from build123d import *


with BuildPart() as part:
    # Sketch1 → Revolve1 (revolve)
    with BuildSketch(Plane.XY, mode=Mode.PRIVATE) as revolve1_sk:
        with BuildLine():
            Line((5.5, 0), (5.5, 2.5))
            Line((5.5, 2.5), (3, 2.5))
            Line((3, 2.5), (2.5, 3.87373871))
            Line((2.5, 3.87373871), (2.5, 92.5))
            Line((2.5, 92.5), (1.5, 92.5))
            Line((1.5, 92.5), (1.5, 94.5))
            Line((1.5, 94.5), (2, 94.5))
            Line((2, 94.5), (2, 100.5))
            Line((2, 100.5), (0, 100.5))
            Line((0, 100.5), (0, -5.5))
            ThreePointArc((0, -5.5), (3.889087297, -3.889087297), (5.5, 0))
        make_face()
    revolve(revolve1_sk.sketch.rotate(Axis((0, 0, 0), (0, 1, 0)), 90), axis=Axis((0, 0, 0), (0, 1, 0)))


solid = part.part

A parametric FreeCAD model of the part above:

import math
import FreeCAD as App
import Part
import Sketcher

V = App.Vector
Q = App.Units.Quantity

doc = App.newDocument("Part")
params = doc.addObject("Spreadsheet::Sheet", "Params")
for row, (alias, value) in enumerate([
    ("sketch1_radius", "5.5 mm"),
    ("sketch1_width", "1 mm"),
    ("sketch1_width2", "2 mm"),
    ("sketch1_height", "6 mm"),
    ("sketch1_height2", "106 mm"),
    ("revolution_angle", "360 deg"),
], start=1):
    params.set(f"A{row}", alias)
    params.set(f"B{row}", "=" + value)
    params.setAlias(f"B{row}", alias)

body = doc.addObject("PartDesign::Body", "Body")

# Sketch on XY plane
sketch1 = body.newObject("Sketcher::SketchObject", "Sketch")
sketch1.AttachmentSupport = (doc.getObject("XY_Plane"), [""])
sketch1.MapMode = "FlatFace"
sketch1.addGeometry([
    Part.LineSegment(V(5.5, 0, 0), V(5.5, 2.5, 0)),  # 0
    Part.LineSegment(V(5.5, 2.5, 0), V(3, 2.5, 0)),  # 1
    Part.LineSegment(V(3, 2.5, 0), V(2.5, 3.873739, 0)),  # 2
    Part.LineSegment(V(2.5, 3.873739, 0), V(2.5, 92.5, 0)),  # 3
    Part.LineSegment(V(2.5, 92.5, 0), V(1.5, 92.5, 0)),  # 4
    Part.LineSegment(V(1.5, 92.5, 0), V(1.5, 94.5, 0)),  # 5
    Part.LineSegment(V(1.5, 94.5, 0), V(2, 94.5, 0)),  # 6
    Part.LineSegment(V(2, 94.5, 0), V(2, 100.5, 0)),  # 7
    Part.LineSegment(V(2, 100.5, 0), V(0, 100.5, 0)),  # 8
    Part.LineSegment(V(0, 100.5, 0), V(0, -5.5, 0)),  # 9
    Part.ArcOfCircle(Part.Circle(V(0, 0, 0), V(0, 0, 1), 5.5), math.radians(-90), math.radians(0)),  # 10
], False)
sketch1.addConstraint([
    Sketcher.Constraint("Coincident", 0, 2, 1, 1),
    Sketcher.Constraint("Coincident", 1, 2, 2, 1),
    Sketcher.Constraint("Coincident", 2, 2, 3, 1),
    Sketcher.Constraint("Coincident", 3, 2, 4, 1),
    Sketcher.Constraint("Coincident", 4, 2, 5, 1),
    Sketcher.Constraint("Coincident", 5, 2, 6, 1),
    Sketcher.Constraint("Coincident", 6, 2, 7, 1),
    Sketcher.Constraint("Coincident", 7, 2, 8, 1),
    Sketcher.Constraint("Coincident", 8, 2, 9, 1),
    Sketcher.Constraint("Coincident", 9, 2, 10, 1),
    Sketcher.Constraint("Tangent", 10, 2, 0, 1),
    Sketcher.Constraint("Vertical", 0),
    Sketcher.Constraint("Horizontal", 1),
    Sketcher.Constraint("Vertical", 3),
    Sketcher.Constraint("Horizontal", 4),
    Sketcher.Constraint("Vertical", 5),
    Sketcher.Constraint("Horizontal", 6),
    Sketcher.Constraint("Vertical", 7),
    Sketcher.Constraint("Horizontal", 8),
    Sketcher.Constraint("Vertical", 9),
    Sketcher.Constraint("Coincident", 10, 3, -1, 1),
    Sketcher.Constraint("PointOnObject", 8, 2, -2),
    Sketcher.Constraint("Equal", 1, 0),
    Sketcher.Constraint("Equal", 8, 5),
    Sketcher.Constraint("Radius", 10, 5.5),
    Sketcher.Constraint("DistanceX", 4, 2, 4, 1, 1.0),
    Sketcher.Constraint("DistanceX", 8, 2, 8, 1, 2.0),
    Sketcher.Constraint("DistanceY", 7, 1, 7, 2, 6.0),
    Sketcher.Constraint("DistanceY", 9, 2, 9, 1, 106.0),
    Sketcher.Constraint("Angle", 2, Q("110 deg")),
    Sketcher.Constraint("DistanceX", 1, 2, 1, 1, 2.5),
    Sketcher.Constraint("DistanceX", 6, 1, 6, 2, 0.5),
])
sketch1.setExpression("Constraints[24]", "Params.sketch1_radius")
sketch1.setExpression("Constraints[25]", "Params.sketch1_width")
sketch1.setExpression("Constraints[26]", "Params.sketch1_width2")
sketch1.setExpression("Constraints[27]", "Params.sketch1_height")
sketch1.setExpression("Constraints[28]", "Params.sketch1_height2")
revolution = body.newObject("PartDesign::Revolution", "Revolution")
revolution.Profile = sketch1
revolution.ReferenceAxis = (sketch1, ["V_Axis"])
revolution.setExpression("Angle", "Params.revolution_angle")

doc.recompute()
